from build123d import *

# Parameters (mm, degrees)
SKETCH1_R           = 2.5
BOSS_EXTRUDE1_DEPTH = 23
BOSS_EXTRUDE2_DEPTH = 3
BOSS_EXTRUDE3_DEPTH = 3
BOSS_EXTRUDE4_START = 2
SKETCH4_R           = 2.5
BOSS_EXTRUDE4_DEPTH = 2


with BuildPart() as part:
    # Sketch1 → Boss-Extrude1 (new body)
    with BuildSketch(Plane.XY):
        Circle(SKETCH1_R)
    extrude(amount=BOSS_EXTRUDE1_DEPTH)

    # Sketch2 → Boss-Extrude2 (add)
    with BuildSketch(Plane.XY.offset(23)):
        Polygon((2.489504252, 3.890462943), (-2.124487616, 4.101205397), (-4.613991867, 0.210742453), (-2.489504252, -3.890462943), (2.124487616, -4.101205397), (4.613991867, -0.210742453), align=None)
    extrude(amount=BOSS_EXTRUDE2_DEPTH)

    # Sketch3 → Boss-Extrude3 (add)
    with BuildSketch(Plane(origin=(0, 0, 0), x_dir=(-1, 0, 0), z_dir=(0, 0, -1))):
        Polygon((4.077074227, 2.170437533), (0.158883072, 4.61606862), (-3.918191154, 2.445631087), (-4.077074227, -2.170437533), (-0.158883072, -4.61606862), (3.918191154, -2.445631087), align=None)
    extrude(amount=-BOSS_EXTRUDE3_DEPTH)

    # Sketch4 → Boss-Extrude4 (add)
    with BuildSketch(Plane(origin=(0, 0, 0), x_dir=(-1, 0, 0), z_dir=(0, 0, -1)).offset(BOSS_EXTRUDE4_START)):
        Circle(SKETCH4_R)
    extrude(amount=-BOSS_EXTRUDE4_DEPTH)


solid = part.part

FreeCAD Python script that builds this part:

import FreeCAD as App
import Part
import Sketcher
Q = App.Units.Quantity

doc = App.newDocument("Part")
body = doc.addObject("PartDesign::Body", "Body")

sketch1 = doc.addObject("Sketcher::SketchObject", "Sketch")
body.addObject(sketch1)
sketch1.AttachmentSupport = (doc.XY_Plane, [""])
sketch1.MapMode = "FlatFace"
sketch1.addGeometry(Part.Circle(App.Vector(0, 0, 0), App.Vector(0, 0, 1), 2.5), False)
sketch1.addConstraint([
    Sketcher.Constraint("Coincident", 0, 3, -1, 1),
    Sketcher.Constraint("Diameter", 0, Q("5 mm")),
])
pad1 = doc.addObject("PartDesign::Pad", "Pad")
body.addObject(pad1)
pad1.Profile = sketch1
pad1.Length = 23

sketch2 = doc.addObject("Sketcher::SketchObject", "Sketch001")
body.addObject(sketch2)
sketch2.AttachmentSupport = (doc.XY_Plane, [""])
sketch2.MapMode = "FlatFace"
sketch2.AttachmentOffset = App.Placement(App.Vector(0, 0, 23), App.Rotation())
sketch2.addGeometry([
    Part.LineSegment(App.Vector(2.5, 3.9, 0), App.Vector(-2.1, 4.1, 0)),
    Part.LineSegment(App.Vector(-2.1, 4.1, 0), App.Vector(-4.6, 0.2, 0)),
    Part.LineSegment(App.Vector(-4.6, 0.2, 0), App.Vector(-2.5, -3.9, 0)),
    Part.LineSegment(App.Vector(-2.5, -3.9, 0), App.Vector(2.1, -4.1, 0)),
    Part.LineSegment(App.Vector(2.1, -4.1, 0), App.Vector(4.6, -0.2, 0)),
    Part.LineSegment(App.Vector(4.6, -0.2, 0), App.Vector(2.5, 3.9, 0)),
], False)
sketch2.addConstraint([
    Sketcher.Constraint("Coincident", 0, 2, 1, 1),
    Sketcher.Constraint("Coincident", 1, 2, 2, 1),
    Sketcher.Constraint("Coincident", 2, 2, 3, 1),
    Sketcher.Constraint("Coincident", 3, 2, 4, 1),
    Sketcher.Constraint("Coincident", 4, 2, 5, 1),
    Sketcher.Constraint("Coincident", 5, 2, 0, 1),
    Sketcher.Constraint("Symmetric", 0, 2, 3, 2, -1, 1),
    Sketcher.Constraint("Symmetric", 1, 2, 4, 2, -1, 1),
    Sketcher.Constraint("Symmetric", 2, 2, 5, 2, -1, 1),
    Sketcher.Constraint("Equal", 0, 1),
    Sketcher.Constraint("Equal", 1, 2),
    Sketcher.Constraint("DistanceX", 1, 2, -1, 1, Q("4.613992 mm")),
    Sketcher.Constraint("DistanceY", 2, 2, 0, 2, Q("7.991668 mm")),
    Sketcher.Constraint("DistanceX", 2, 2, 3, 2, Q("4.613992 mm")),
    Sketcher.Constraint("DistanceX", 1, 2, 3, 2, Q("6.738479 mm")),
])
pad2 = doc.addObject("PartDesign::Pad", "Pad001")
body.addObject(pad2)
pad2.Profile = sketch2
pad2.Length = 3

sketch3 = doc.addObject("Sketcher::SketchObject", "Sketch002")
body.addObject(sketch3)
sketch3.AttachmentSupport = (doc.XY_Plane, [""])
sketch3.MapMode = "FlatFace"
sketch3.addGeometry([
    Part.LineSegment(App.Vector(-4.1, 2.2, 0), App.Vector(-0.2, 4.6, 0)),
    Part.LineSegment(App.Vector(-0.2, 4.6, 0), App.Vector(3.9, 2.4, 0)),
    Part.LineSegment(App.Vector(3.9, 2.4, 0), App.Vector(4.1, -2.2, 0)),
    Part.LineSegment(App.Vector(4.1, -2.2, 0), App.Vector(0.2, -4.6, 0)),
    Part.LineSegment(App.Vector(0.2, -4.6, 0), App.Vector(-3.9, -2.4, 0)),
    Part.LineSegment(App.Vector(-3.9, -2.4, 0), App.Vector(-4.1, 2.2, 0)),
], False)
sketch3.addConstraint([
    Sketcher.Constraint("Coincident", 0, 2, 1, 1),
    Sketcher.Constraint("Coincident", 1, 2, 2, 1),
    Sketcher.Constraint("Coincident", 2, 2, 3, 1),
    Sketcher.Constraint("Coincident", 3, 2, 4, 1),
    Sketcher.Constraint("Coincident", 4, 2, 5, 1),
    Sketcher.Constraint("Coincident", 5, 2, 0, 1),
    Sketcher.Constraint("Symmetric", 0, 2, 3, 2, -1, 1),
    Sketcher.Constraint("Symmetric", 1, 2, 4, 2, -1, 1),
    Sketcher.Constraint("Symmetric", 2, 2, 5, 2, -1, 1),
    Sketcher.Constraint("Equal", 0, 1),
    Sketcher.Constraint("Equal", 1, 2),
    Sketcher.Constraint("DistanceY", 3, 2, 1, 2, Q("7.0617 mm")),
    Sketcher.Constraint("DistanceY", -1, 1, 0, 2, Q("4.616069 mm")),
    Sketcher.Constraint("DistanceX", -1, 1, 1, 2, Q("3.918191 mm")),
    Sketcher.Constraint("DistanceY", 2, 2, 1, 2, Q("4.616069 mm")),
])
pad3 = doc.addObject("PartDesign::Pad", "Pad002")
body.addObject(pad3)
pad3.Profile = sketch3
pad3.Length = 3

sketch4 = doc.addObject("Sketcher::SketchObject", "Sketch003")
body.addObject(sketch4)
sketch4.AttachmentSupport = (doc.XY_Plane, [""])
sketch4.MapMode = "FlatFace"
sketch4.AttachmentOffset = App.Placement(App.Vector(0, 0, -2), App.Rotation())
sketch4.addGeometry(Part.Circle(App.Vector(0, 0, 0), App.Vector(0, 0, 1), 2.5), False)
sketch4.addConstraint([
    Sketcher.Constraint("Coincident", 0, 3, -1, 1),
    Sketcher.Constraint("Diameter", 0, Q("5 mm")),
])
pad4 = doc.addObject("PartDesign::Pad", "Pad003")
body.addObject(pad4)
pad4.Profile = sketch4
pad4.Length = 2

doc.recompute()
